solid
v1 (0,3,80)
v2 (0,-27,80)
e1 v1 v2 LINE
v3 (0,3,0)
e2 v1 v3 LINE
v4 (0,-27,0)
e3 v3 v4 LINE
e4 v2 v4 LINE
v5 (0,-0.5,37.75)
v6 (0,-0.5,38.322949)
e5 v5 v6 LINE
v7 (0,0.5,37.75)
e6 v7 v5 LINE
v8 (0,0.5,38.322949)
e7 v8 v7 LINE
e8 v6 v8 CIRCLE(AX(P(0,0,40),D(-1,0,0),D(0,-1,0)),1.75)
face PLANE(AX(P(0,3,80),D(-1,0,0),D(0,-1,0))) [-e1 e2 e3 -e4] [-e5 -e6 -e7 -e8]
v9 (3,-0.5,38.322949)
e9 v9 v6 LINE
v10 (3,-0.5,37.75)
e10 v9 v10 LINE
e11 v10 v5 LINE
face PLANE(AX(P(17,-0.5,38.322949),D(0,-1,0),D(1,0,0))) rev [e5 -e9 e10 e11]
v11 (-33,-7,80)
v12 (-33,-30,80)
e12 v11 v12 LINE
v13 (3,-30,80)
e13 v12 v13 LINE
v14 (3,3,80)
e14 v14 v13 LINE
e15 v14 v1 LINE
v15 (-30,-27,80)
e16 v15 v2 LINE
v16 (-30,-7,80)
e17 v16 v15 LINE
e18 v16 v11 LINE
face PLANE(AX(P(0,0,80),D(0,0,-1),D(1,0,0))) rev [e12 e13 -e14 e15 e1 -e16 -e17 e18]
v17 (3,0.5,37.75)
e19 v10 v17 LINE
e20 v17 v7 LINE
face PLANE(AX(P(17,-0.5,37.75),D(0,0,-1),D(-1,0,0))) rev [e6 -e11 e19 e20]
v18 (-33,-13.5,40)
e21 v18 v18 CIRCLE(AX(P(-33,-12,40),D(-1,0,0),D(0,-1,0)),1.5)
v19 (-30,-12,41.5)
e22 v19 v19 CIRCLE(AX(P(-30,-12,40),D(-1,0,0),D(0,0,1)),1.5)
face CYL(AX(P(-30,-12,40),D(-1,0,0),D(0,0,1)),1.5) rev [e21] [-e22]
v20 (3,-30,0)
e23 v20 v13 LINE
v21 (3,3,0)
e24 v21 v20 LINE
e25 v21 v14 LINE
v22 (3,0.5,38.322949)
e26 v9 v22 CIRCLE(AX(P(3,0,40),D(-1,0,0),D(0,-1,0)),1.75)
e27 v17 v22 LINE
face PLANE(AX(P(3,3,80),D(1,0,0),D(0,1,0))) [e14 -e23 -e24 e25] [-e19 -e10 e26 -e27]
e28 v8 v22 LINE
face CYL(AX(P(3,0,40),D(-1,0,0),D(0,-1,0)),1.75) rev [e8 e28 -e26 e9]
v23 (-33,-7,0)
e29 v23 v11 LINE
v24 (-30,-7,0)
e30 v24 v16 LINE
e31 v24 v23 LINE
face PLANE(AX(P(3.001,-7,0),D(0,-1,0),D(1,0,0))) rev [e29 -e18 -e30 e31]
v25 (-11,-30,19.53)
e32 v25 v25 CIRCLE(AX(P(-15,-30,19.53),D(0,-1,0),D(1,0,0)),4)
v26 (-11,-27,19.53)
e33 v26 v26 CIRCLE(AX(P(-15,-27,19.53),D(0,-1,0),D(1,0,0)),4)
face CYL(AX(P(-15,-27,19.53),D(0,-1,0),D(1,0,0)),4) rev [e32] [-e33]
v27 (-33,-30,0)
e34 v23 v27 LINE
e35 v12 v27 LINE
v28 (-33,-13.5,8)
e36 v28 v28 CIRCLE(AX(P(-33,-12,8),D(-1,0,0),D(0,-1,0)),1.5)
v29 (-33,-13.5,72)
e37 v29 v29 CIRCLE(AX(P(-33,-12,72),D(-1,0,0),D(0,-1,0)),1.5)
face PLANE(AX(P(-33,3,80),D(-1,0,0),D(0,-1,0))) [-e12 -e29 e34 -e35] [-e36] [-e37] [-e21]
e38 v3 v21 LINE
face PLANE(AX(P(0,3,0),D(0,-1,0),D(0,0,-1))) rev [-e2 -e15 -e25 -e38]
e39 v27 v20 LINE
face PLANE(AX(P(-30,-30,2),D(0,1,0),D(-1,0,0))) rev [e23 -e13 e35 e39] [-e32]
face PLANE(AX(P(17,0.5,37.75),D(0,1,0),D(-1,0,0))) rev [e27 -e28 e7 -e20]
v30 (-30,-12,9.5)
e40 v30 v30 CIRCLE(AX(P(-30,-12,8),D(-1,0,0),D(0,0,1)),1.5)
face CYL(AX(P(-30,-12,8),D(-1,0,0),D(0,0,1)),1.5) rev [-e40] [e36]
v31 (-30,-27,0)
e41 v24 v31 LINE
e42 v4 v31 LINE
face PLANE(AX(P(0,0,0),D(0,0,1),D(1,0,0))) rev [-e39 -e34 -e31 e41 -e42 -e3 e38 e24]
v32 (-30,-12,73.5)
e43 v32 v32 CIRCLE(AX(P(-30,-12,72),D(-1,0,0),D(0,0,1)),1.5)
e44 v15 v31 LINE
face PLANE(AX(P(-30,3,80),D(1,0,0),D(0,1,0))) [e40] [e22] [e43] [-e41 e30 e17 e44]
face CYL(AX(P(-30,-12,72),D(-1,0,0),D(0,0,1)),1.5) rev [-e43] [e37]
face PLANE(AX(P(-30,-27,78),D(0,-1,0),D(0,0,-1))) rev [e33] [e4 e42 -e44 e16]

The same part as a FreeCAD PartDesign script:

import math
import FreeCAD as App
import Part
import Sketcher


def add_polygon(sketch, points):
    """Adds a closed chain of lines whose ends are joined by coincident constraints."""
    first, n = sketch.GeometryCount, len(points)
    for a, b in zip(points, points[1:] + points[:1]):
        sketch.addGeometry(Part.LineSegment(App.Vector(*a, 0), App.Vector(*b, 0)), False)
    for i in range(n):
        sketch.addConstraint(Sketcher.Constraint("Coincident", first + i, 2, first + (i + 1) % n, 1))

doc = App.newDocument("Part")
body = doc.addObject("PartDesign::Body", "Body")

# Sketch on XY plane
sketch1 = body.newObject("Sketcher::SketchObject", "Sketch")
sketch1.AttachmentSupport = (doc.getObject("XY_Plane"), [""])
sketch1.MapMode = "FlatFace"
add_polygon(sketch1, [(-30, 0), (-30, -30), (0, -30), (0, 0)])  # lines 0-3
sketch1.addGeometry(Part.Circle(App.Vector(-15, -2.5, 0), App.Vector(0, 0, 1), 1.8), False)  # 4
sketch1.addConstraint(Sketcher.Constraint("Vertical", 0))
sketch1.addConstraint(Sketcher.Constraint("Horizontal", 1))
sketch1.addConstraint(Sketcher.Constraint("Vertical", 2))
sketch1.addConstraint(Sketcher.Constraint("Horizontal", 3))
sketch1.addConstraint(Sketcher.Constraint("Coincident", 2, 2, -1, 1))
sketch1.addConstraint(Sketcher.Constraint("Equal", 3, 0))
sketch1.addConstraint(Sketcher.Constraint("Diameter", 4, 3.5))
sketch1.addConstraint(Sketcher.Constraint("DistanceX", 1, 1, 1, 2, 30.0))
sketch1.addConstraint(Sketcher.Constraint("DistanceX", 4, 3, -1, 1, 15.0))
sketch1.addConstraint(Sketcher.Constraint("DistanceY", 4, 3, -1, 1, 2.5))
pad1 = body.newObject("PartDesign::Pad", "Pad")
pad1.Profile = sketch1
pad1.Length = 2

# Sketch on XY plane
sketch2 = body.newObject("Sketcher::SketchObject", "Sketch001")
sketch2.AttachmentSupport = (doc.getObject("XY_Plane"), [""])
sketch2.MapMode = "FlatFace"
sketch2.AttachmentOffset = App.Placement(App.Vector(0, 0, 2), App.Rotation())
add_polygon(sketch2, [(-30, -27), (-30, -30), (0, -30), (0, -27)])  # lines 0-3
sketch2.addConstraint(Sketcher.Constraint("Vertical", 0))
sketch2.addConstraint(Sketcher.Constraint("Horizontal", 1))
sketch2.addConstraint(Sketcher.Constraint("Vertical", 2))
sketch2.addConstraint(Sketcher.Constraint("Horizontal", 3))
sketch2.addConstraint(Sketcher.Constraint("PointOnObject", 1, 2, -2))
sketch2.addConstraint(Sketcher.Constraint("DistanceX", 1, 1, 1, 2, 30.0))
sketch2.addConstraint(Sketcher.Constraint("DistanceY", 0, 2, 0, 1, 3.0))
sketch2.addConstraint(Sketcher.Constraint("DistanceY", 0, 2, -1, 1, 30.0))
pad2 = body.newObject("PartDesign::Pad", "Pad001")
pad2.Profile = sketch2
pad2.Length = 76
doc.recompute()

datumplane = body.newObject("PartDesign::Plane", "DatumPlane")
datumplane.AttachmentSupport = (doc.getObject("XY_Plane"), [""])
datumplane.MapMode = "FlatFace"
datumplane.AttachmentOffset = App.Placement(App.Vector(0, 0, 40), App.Rotation())
mirrored = body.newObject("PartDesign::Mirrored", "Mirrored")
mirrored.Originals = [pad1]
mirrored.MirrorPlane = (datumplane, [""])
body.Tip = mirrored

# Sketch on XZ plane
sketch3 = body.newObject("Sketcher::SketchObject", "Sketch002")
sketch3.AttachmentSupport = (doc.getObject("XZ_Plane"), [""])
sketch3.MapMode = "FlatFace"
sketch3.AttachmentOffset = App.Placement(App.Vector(0, 0, 30), App.Rotation())
sketch3.addGeometry(Part.Circle(App.Vector(-15, 19.5, 0), App.Vector(0, 0, 1), 4), False)
sketch3.addConstraint(Sketcher.Constraint("Diameter", 0, 8.0))
sketch3.addConstraint(Sketcher.Constraint("DistanceX", 0, 3, -1, 1, 15.0))
sketch3.addConstraint(Sketcher.Constraint("DistanceY", -1, 1, 0, 3, 19.53))
pocket1 = body.newObject("PartDesign::Pocket", "Pocket")
pocket1.Profile = sketch3
pocket1.Length = 3

# Sketch on XZ plane
sketch4 = body.newObject("Sketcher::SketchObject", "Sketch003")
sketch4.AttachmentSupport = (doc.getObject("XZ_Plane"), [""])
sketch4.MapMode = "FlatFace"
add_polygon(sketch4, [(-30, 78), (-30, 80), (0, 80), (0, 78)])  # lines 0-3
add_polygon(sketch4, [(-30, 0), (-30, 2), (0, 2), (0, 0)])  # lines 4-7
sketch4.addConstraint(Sketcher.Constraint("Vertical", 0))
sketch4.addConstraint(Sketcher.Constraint("Horizontal", 1))
sketch4.addConstraint(Sketcher.Constraint("Vertical", 2))
sketch4.addConstraint(Sketcher.Constraint("Horizontal", 3))
sketch4.addConstraint(Sketcher.Constraint("Vertical", 4))
sketch4.addConstraint(Sketcher.Constraint("Horizontal", 5))
sketch4.addConstraint(Sketcher.Constraint("Vertical", 6))
sketch4.addConstraint(Sketcher.Constraint("Horizontal", 7))
sketch4.addConstraint(Sketcher.Constraint("Coincident", 6, 2, -1, 1))
sketch4.addConstraint(Sketcher.Constraint("PointOnObject", 1, 2, -2))
sketch4.addConstraint(Sketcher.Constraint("Vertical", 3, 2, 4, 2))
sketch4.addConstraint(Sketcher.Constraint("Equal", 2, 4))
sketch4.addConstraint(Sketcher.Constraint("DistanceX", 1, 1, 1, 2, 30.0))
sketch4.addConstraint(Sketcher.Constraint("DistanceY", 0, 1, 0, 2, 2.0))
sketch4.addConstraint(Sketcher.Constraint("DistanceY", -1, 1, 0, 2, 80.0))
pocket2 = body.newObject("PartDesign::Pocket", "Pocket001")
pocket2.Profile = sketch4
pocket2.Length = 27
pocket2.Reversed = True

# Sketch on XZ plane
sketch5 = body.newObject("Sketcher::SketchObject", "Sketch004")
sketch5.AttachmentSupport = (doc.getObject("XZ_Plane"), [""])
sketch5.MapMode = "FlatFace"
sketch5.AttachmentOffset = App.Placement(App.Vector(0, 0, 30), App.Rotation())
add_polygon(sketch5, [(0, 80), (0, 0), (3, 0), (3, 80)])  # lines 0-3
add_polygon(sketch5, [(-33, 80), (-33, 0), (-30, 0), (-30, 80)])  # lines 4-7
sketch5.addConstraint(Sketcher.Constraint("Vertical", 0))
sketch5.addConstraint(Sketcher.Constraint("Horizontal", 1))
sketch5.addConstraint(Sketcher.Constraint("Vertical", 2))
sketch5.addConstraint(Sketcher.Constraint("Horizontal", 3))
sketch5.addConstraint(Sketcher.Constraint("Vertical", 4))
sketch5.addConstraint(Sketcher.Constraint("Horizontal", 5))
sketch5.addConstraint(Sketcher.Constraint("Vertical", 6))
sketch5.addConstraint(Sketcher.Constraint("Horizontal", 7))
sketch5.addConstraint(Sketcher.Constraint("Coincident", 0, 2, -1, 1))
sketch5.addConstraint(Sketcher.Constraint("PointOnObject", 4, 2, -1))
sketch5.addConstraint(Sketcher.Constraint("Horizontal", 3, 2, 6, 2))
sketch5.addConstraint(Sketcher.Constraint("Equal", 3, 5))
sketch5.addConstraint(Sketcher.Constraint("DistanceX", 1, 1, 1, 2, 3.0))
sketch5.addConstraint(Sketcher.Constraint("DistanceY", 0, 2, 0, 1, 80.0))
sketch5.addConstraint(Sketcher.Constraint("DistanceX", 4, 2, -1, 1, 33.0))
pad3 = body.newObject("PartDesign::Pad", "Pad002")
pad3.Profile = sketch5
pad3.Length = 33
pad3.Reversed = True

# Sketch on YZ plane
sketch6 = body.newObject("Sketcher::SketchObject", "Sketch005")
sketch6.AttachmentSupport = (doc.getObject("YZ_Plane"), [""])
sketch6.MapMode = "FlatFace"
sketch6.AttachmentOffset = App.Placement(App.Vector(0, 0, -33), App.Rotation())
sketch6.addGeometry(Part.Circle(App.Vector(0, 40, 0), App.Vector(0, 0, 1), 1.8), False)
sketch6.addConstraint(Sketcher.Constraint("PointOnObject", 0, 3, -2))
sketch6.addConstraint(Sketcher.Constraint("Diameter", 0, 3.5))
sketch6.addConstraint(Sketcher.Constraint("DistanceY", -1, 1, 0, 3, 40.0))
pocket3 = body.newObject("PartDesign::Pocket", "Pocket002")
pocket3.Profile = sketch6
pocket3.Type = "ThroughAll"
pocket3.Reversed = True

# Sketch on YZ plane
sketch7 = body.newObject("Sketcher::SketchObject", "Sketch006")
sketch7.AttachmentSupport = (doc.getObject("YZ_Plane"), [""])
sketch7.MapMode = "FlatFace"
sketch7.AttachmentOffset = App.Placement(App.Vector(0, 0, -33), App.Rotation())
sketch7.addGeometry(Part.LineSegment(App.Vector(-0.5, 37.8, 0), App.Vector(-0.5, 38.3, 0)), False)
sketch7.addGeometry(Part.ArcOfCircle(Part.Circle(App.Vector(0, 40, 0), App.Vector(0, 0, 1), 1.8), math.radians(-73), math.radians(253)), False)
sketch7.addGeometry(Part.LineSegment(App.Vector(0.5, 38.3, 0), App.Vector(0.5, 37.8, 0)), False)
sketch7.addGeometry(Part.LineSegment(App.Vector(0.5, 37.8, 0), App.Vector(-0.5, 37.8, 0)), False)
sketch7.addConstraint(Sketcher.Constraint("Coincident", 0, 2, 1, 2))
sketch7.addConstraint(Sketcher.Constraint("Coincident", 1, 1, 2, 1))
sketch7.addConstraint(Sketcher.Constraint("Coincident", 2, 2, 3, 1))
sketch7.addConstraint(Sketcher.Constraint("Coincident", 3, 2, 0, 1))
sketch7.addConstraint(Sketcher.Constraint("Vertical", 0))
sketch7.addConstraint(Sketcher.Constraint("Vertical", 2))
sketch7.addConstraint(Sketcher.Constraint("Horizontal", 3))
sketch7.addConstraint(Sketcher.Constraint("Symmetric", 0, 2, 1, 1, -2))
sketch7.addConstraint(Sketcher.Constraint("DistanceX", 3, 2, 3, 1, 1.0))
sketch7.addConstraint(Sketcher.Constraint("Radius", 1, 1.75))
sketch7.addConstraint(Sketcher.Constraint("DistanceY", -1, 1, 1, 3, 40.0))
sketch7.addConstraint(Sketcher.Constraint("DistanceY", -1, 1, 2, 2, 37.75))
pocket4 = body.newObject("PartDesign::Pocket", "Pocket003")
pocket4.Profile = sketch7
pocket4.Length = 50
pocket4.Reversed = True

# Sketch on YZ plane
sketch8 = body.newObject("Sketcher::SketchObject", "Sketch007")
sketch8.AttachmentSupport = (doc.getObject("YZ_Plane"), [""])
sketch8.MapMode = "FlatFace"
sketch8.AttachmentOffset = App.Placement(App.Vector(0, 0, -33), App.Rotation())
add_polygon(sketch8, [(3, 0), (-7, 0), (-7, 80), (3, 80)])  # lines 0-3
sketch8.addConstraint(Sketcher.Constraint("Horizontal", 0))
sketch8.addConstraint(Sketcher.Constraint("Vertical", 1))
sketch8.addConstraint(Sketcher.Constraint("Horizontal", 2))
sketch8.addConstraint(Sketcher.Constraint("Vertical", 3))
sketch8.addConstraint(Sketcher.Constraint("PointOnObject", 0, 2, -1))
sketch8.addConstraint(Sketcher.Constraint("DistanceX", 0, 2, 0, 1, 10.0))
sketch8.addConstraint(Sketcher.Constraint("DistanceY", 1, 1, 1, 2, 80.0))
sketch8.addConstraint(Sketcher.Constraint("DistanceX", 0, 2, -1, 1, 7.0))
pocket5 = body.newObject("PartDesign::Pocket", "Pocket004")
pocket5.Profile = sketch8
pocket5.Type = "UpToFirst"
pocket5.Reversed = True

# Sketch on YZ plane
sketch9 = body.newObject("Sketcher::SketchObject", "Sketch008")
sketch9.AttachmentSupport = (doc.getObject("YZ_Plane"), [""])
sketch9.MapMode = "FlatFace"
sketch9.AttachmentOffset = App.Placement(App.Vector(0, 0, -36), App.Rotation())
sketch9.addGeometry(Part.Circle(App.Vector(-12, 8, 0), App.Vector(0, 0, 1), 1.5), False)
sketch9.addGeometry(Part.Circle(App.Vector(-12, 40, 0), App.Vector(0, 0, 1), 1.5), False)
sketch9.addGeometry(Part.Circle(App.Vector(-12, 72, 0), App.Vector(0, 0, 1), 1.5), False)
sketch9.addConstraint(Sketcher.Constraint("Equal", 0, 1))
sketch9.addConstraint(Sketcher.Constraint("Equal", 1, 2))
sketch9.addConstraint(Sketcher.Constraint("Vertical", 0, 3, 1, 3))
sketch9.addConstraint(Sketcher.Constraint("Vertical", 1, 3, 2, 3))
sketch9.addConstraint(Sketcher.Constraint("Diameter", 0, 3.0))
sketch9.addConstraint(Sketcher.Constraint("DistanceX", 0, 3, -1, 1, 12.0))
sketch9.addConstraint(Sketcher.Constraint("DistanceY", -1, 1, 0, 3, 8.0))
sketch9.addConstraint(Sketcher.Constraint("DistanceY", -1, 1, 1, 3, 40.0))
sketch9.addConstraint(Sketcher.Constraint("DistanceY", -1, 1, 2, 3, 72.0))
pocket6 = body.newObject("PartDesign::Pocket", "Pocket005")
pocket6.Profile = sketch9
pocket6.Length = 6
pocket6.Reversed = True

doc.recompute()
